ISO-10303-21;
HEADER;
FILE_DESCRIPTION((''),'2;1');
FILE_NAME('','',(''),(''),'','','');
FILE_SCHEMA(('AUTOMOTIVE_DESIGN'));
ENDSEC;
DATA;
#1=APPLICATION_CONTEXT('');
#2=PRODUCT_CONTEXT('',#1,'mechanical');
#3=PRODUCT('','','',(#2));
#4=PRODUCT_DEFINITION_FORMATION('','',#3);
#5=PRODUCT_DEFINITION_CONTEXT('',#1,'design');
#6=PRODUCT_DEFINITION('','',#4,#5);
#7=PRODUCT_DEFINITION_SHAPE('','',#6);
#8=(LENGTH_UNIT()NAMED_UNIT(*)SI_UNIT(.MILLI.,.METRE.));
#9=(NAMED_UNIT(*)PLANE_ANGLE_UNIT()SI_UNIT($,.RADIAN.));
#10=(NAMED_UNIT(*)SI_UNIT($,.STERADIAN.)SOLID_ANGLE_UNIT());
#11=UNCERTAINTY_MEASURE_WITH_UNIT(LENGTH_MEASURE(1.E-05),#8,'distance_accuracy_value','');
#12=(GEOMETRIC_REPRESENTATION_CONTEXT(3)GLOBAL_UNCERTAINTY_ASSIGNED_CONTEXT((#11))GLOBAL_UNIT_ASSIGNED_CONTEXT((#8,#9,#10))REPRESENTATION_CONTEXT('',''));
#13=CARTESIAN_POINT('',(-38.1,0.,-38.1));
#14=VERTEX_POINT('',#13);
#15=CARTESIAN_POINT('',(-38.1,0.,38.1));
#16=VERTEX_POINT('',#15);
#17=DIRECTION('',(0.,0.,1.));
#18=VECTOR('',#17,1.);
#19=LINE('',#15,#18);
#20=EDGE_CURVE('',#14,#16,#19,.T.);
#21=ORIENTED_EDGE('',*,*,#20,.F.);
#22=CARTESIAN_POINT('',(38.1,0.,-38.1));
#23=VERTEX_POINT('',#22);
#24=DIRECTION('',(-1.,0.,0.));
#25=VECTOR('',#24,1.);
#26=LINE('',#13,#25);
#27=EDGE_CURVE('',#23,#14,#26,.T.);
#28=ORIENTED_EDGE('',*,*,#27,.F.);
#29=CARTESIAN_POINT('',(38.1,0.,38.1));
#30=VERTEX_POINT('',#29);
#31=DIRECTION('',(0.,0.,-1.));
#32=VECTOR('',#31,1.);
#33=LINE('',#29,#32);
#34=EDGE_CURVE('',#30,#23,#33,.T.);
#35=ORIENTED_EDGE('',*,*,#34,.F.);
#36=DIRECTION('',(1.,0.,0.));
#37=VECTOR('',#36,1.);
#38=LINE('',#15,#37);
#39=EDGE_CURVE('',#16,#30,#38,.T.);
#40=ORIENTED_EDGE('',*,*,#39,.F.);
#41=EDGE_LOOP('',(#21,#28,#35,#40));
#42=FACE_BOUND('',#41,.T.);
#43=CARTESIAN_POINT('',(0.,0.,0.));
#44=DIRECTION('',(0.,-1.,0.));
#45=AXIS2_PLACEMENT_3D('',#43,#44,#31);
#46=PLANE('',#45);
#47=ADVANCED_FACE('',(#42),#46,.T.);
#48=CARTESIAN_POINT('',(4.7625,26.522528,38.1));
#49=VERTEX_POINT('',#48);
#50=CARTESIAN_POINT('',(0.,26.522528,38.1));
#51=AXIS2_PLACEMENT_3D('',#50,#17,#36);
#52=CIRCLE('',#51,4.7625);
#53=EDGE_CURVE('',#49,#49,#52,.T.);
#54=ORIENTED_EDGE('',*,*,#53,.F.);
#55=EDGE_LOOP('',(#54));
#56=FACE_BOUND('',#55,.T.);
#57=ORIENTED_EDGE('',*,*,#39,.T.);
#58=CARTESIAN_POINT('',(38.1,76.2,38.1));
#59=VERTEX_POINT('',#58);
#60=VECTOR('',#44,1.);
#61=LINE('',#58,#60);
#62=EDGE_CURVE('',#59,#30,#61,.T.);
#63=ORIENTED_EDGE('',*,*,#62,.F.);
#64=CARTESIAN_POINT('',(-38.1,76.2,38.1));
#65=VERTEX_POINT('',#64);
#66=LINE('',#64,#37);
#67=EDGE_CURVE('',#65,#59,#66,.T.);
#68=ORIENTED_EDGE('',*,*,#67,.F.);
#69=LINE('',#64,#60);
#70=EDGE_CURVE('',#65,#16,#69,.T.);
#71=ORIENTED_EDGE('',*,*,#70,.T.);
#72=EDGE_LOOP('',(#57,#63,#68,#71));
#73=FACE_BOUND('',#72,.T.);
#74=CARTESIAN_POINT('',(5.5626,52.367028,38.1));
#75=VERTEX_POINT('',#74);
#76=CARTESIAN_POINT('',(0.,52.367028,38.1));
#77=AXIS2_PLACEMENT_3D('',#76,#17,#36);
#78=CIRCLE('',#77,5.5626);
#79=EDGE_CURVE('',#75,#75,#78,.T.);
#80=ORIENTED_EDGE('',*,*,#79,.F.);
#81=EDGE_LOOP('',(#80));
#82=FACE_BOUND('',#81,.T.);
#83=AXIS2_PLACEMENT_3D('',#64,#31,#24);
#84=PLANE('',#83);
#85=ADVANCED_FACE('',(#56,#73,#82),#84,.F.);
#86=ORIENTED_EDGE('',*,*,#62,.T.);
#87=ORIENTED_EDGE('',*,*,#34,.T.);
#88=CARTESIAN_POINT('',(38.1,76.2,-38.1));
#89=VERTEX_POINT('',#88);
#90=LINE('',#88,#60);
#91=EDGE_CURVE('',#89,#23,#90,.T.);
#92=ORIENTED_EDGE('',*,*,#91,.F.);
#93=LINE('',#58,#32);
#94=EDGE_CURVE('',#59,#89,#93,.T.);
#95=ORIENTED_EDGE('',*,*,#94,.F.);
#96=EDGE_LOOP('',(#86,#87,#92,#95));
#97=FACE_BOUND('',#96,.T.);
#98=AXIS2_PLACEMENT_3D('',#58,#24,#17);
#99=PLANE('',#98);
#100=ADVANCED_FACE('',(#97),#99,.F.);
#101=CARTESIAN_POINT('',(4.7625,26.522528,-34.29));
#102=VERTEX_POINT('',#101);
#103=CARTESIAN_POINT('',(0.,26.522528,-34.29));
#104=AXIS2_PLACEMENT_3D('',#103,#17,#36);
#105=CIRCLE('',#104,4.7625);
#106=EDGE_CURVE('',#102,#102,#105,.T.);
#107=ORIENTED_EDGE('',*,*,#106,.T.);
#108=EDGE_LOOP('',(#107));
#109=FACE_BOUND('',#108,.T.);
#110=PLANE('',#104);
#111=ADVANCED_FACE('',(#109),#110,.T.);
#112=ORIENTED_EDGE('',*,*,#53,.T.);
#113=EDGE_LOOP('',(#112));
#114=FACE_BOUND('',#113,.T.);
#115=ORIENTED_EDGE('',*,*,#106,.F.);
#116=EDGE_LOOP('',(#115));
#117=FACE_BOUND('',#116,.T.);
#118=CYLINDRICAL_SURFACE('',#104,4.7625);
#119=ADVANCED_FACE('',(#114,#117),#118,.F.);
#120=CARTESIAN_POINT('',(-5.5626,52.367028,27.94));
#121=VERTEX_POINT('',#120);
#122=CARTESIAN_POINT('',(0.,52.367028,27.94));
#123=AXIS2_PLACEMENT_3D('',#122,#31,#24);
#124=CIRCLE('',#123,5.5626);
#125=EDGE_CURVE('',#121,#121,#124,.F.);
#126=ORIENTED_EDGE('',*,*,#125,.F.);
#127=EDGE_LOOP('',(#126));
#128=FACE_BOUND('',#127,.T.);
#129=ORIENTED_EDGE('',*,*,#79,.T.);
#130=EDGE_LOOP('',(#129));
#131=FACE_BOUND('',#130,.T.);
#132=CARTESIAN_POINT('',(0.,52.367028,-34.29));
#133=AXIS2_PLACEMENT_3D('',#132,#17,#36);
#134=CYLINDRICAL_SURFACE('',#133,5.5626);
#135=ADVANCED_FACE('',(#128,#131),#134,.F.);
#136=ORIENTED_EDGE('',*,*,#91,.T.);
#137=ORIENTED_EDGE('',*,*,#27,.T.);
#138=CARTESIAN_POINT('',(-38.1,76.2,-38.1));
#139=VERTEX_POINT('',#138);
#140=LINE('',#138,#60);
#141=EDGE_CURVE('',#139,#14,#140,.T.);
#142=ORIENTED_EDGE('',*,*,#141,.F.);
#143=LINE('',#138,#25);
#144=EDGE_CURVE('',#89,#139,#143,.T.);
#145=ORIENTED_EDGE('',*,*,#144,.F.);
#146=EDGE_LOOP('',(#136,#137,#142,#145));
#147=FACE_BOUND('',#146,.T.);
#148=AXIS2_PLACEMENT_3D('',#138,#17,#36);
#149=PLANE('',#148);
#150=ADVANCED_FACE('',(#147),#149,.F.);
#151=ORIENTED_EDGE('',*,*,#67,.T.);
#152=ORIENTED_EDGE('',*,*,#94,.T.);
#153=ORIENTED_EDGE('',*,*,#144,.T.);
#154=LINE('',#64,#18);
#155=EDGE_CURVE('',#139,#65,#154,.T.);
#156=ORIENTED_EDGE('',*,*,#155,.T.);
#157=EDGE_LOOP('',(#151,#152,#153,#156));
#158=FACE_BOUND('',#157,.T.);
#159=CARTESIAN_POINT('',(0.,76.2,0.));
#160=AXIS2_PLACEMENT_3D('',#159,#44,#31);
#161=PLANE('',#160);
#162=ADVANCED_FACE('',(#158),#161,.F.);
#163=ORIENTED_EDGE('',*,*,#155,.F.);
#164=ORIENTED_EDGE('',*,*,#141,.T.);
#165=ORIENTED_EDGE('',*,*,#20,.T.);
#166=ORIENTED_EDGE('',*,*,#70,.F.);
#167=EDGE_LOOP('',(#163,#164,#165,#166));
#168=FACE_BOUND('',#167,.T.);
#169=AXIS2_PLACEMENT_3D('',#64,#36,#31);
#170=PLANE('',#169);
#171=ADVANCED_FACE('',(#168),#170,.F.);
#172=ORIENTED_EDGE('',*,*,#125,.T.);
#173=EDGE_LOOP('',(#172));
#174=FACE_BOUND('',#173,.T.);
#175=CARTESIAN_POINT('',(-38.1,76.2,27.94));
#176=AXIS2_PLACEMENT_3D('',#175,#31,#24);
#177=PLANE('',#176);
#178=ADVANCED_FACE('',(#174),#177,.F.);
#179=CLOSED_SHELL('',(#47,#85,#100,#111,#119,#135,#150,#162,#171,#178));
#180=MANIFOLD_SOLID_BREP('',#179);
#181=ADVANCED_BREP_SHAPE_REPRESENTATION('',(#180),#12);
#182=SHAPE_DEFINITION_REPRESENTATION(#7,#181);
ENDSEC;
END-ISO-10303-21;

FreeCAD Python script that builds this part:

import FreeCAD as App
import Part
import Sketcher
Q = App.Units.Quantity

doc = App.newDocument("Part")
body = doc.addObject("PartDesign::Body", "Body")

# Sketch on XZ plane
sketch1 = body.newObject("Sketcher::SketchObject", "Sketch")
sketch1.AttachmentSupport = (doc.getObject("XZ_Plane"), [""])
sketch1.MapMode = "FlatFace"
sketch1.addGeometry(Part.LineSegment(App.Vector(-38.1, -38.1, 0), App.Vector(-38.1, 38.1, 0)), False)
sketch1.addGeometry(Part.LineSegment(App.Vector(-38.1, 38.1, 0), App.Vector(38.1, 38.1, 0)), False)
sketch1.addGeometry(Part.LineSegment(App.Vector(38.1, 38.1, 0), App.Vector(38.1, -38.1, 0)), False)
sketch1.addGeometry(Part.LineSegment(App.Vector(38.1, -38.1, 0), App.Vector(-38.1, -38.1, 0)), False)
sketch1.addConstraint(Sketcher.Constraint("Coincident", 0, 2, 1, 1))
sketch1.addConstraint(Sketcher.Constraint("Coincident", 1, 2, 2, 1))
sketch1.addConstraint(Sketcher.Constraint("Coincident", 2, 2, 3, 1))
sketch1.addConstraint(Sketcher.Constraint("Coincident", 3, 2, 0, 1))
sketch1.addConstraint(Sketcher.Constraint("Vertical", 0))
sketch1.addConstraint(Sketcher.Constraint("Horizontal", 1))
sketch1.addConstraint(Sketcher.Constraint("Vertical", 2))
sketch1.addConstraint(Sketcher.Constraint("Horizontal", 3))
sketch1.addConstraint(Sketcher.Constraint("Symmetric", 0, 2, 2, 2, -1, 1))
sketch1.addConstraint(Sketcher.Constraint("Equal", 3, 0))
sketch1.addConstraint(Sketcher.Constraint("DistanceX", 1, 1, 1, 2, Q("3 in")))
pad1 = body.newObject("PartDesign::Pad", "Pad")
pad1.Profile = sketch1
pad1.Length = Q("3 in")
pad1.Reversed = True

# Sketch on XY plane
sketch2 = body.newObject("Sketcher::SketchObject", "Sketch001")
sketch2.AttachmentSupport = (doc.getObject("XY_Plane"), [""])
sketch2.MapMode = "FlatFace"
sketch2.AttachmentOffset = App.Placement(App.Vector(0, 0, 1.5 * 25.4), App.Rotation())
sketch2.addGeometry(Part.Circle(App.Vector(0, 26.522528, 0), App.Vector(0, 0, 1), 4.7625), False)
sketch2.addGeometry(Part.Circle(App.Vector(0, 52.367028, 0), App.Vector(0, 0, 1), 5.5626), False)
sketch2.addConstraint(Sketcher.Constraint("PointOnObject", 0, 3, -2))
sketch2.addConstraint(Sketcher.Constraint("PointOnObject", 1, 3, -2))
sketch2.addConstraint(Sketcher.Constraint("Diameter", 0, Q("0.375 in")))
sketch2.addConstraint(Sketcher.Constraint("Diameter", 1, Q("0.438 in")))
sketch2.addConstraint(Sketcher.Constraint("DistanceY", 0, 3, 1, 3, Q("1.0175 in")))
sketch2.addConstraint(Sketcher.Constraint("DistanceY", -1, 1, 0, 3, 26.522528))
pocket1 = body.newObject("PartDesign::Pocket", "Pocket")
pocket1.Profile = sketch2
pocket1.Length = Q("2.85 in")

# Sketch on XY plane
sketch3 = body.newObject("Sketcher::SketchObject", "Sketch002")
sketch3.AttachmentSupport = (doc.getObject("XY_Plane"), [""])
sketch3.MapMode = "FlatFace"
sketch3.AttachmentOffset = App.Placement(App.Vector(0, 0, -1.35 * 25.4), App.Rotation())
sketch3.addGeometry(Part.Circle(App.Vector(0, 52.367028, 0), App.Vector(0, 0, 1), 5.5626), False)
sketch3.addConstraint(Sketcher.Constraint("PointOnObject", 0, 3, -2))
sketch3.addConstraint(Sketcher.Constraint("Diameter", 0, Q("0.438 in")))
sketch3.addConstraint(Sketcher.Constraint("DistanceY", -1, 1, 0, 3, 52.367028))
pad2 = body.newObject("PartDesign::Pad", "Pad001")
pad2.Profile = sketch3
pad2.Length = Q("2.45 in")

doc.recompute()
